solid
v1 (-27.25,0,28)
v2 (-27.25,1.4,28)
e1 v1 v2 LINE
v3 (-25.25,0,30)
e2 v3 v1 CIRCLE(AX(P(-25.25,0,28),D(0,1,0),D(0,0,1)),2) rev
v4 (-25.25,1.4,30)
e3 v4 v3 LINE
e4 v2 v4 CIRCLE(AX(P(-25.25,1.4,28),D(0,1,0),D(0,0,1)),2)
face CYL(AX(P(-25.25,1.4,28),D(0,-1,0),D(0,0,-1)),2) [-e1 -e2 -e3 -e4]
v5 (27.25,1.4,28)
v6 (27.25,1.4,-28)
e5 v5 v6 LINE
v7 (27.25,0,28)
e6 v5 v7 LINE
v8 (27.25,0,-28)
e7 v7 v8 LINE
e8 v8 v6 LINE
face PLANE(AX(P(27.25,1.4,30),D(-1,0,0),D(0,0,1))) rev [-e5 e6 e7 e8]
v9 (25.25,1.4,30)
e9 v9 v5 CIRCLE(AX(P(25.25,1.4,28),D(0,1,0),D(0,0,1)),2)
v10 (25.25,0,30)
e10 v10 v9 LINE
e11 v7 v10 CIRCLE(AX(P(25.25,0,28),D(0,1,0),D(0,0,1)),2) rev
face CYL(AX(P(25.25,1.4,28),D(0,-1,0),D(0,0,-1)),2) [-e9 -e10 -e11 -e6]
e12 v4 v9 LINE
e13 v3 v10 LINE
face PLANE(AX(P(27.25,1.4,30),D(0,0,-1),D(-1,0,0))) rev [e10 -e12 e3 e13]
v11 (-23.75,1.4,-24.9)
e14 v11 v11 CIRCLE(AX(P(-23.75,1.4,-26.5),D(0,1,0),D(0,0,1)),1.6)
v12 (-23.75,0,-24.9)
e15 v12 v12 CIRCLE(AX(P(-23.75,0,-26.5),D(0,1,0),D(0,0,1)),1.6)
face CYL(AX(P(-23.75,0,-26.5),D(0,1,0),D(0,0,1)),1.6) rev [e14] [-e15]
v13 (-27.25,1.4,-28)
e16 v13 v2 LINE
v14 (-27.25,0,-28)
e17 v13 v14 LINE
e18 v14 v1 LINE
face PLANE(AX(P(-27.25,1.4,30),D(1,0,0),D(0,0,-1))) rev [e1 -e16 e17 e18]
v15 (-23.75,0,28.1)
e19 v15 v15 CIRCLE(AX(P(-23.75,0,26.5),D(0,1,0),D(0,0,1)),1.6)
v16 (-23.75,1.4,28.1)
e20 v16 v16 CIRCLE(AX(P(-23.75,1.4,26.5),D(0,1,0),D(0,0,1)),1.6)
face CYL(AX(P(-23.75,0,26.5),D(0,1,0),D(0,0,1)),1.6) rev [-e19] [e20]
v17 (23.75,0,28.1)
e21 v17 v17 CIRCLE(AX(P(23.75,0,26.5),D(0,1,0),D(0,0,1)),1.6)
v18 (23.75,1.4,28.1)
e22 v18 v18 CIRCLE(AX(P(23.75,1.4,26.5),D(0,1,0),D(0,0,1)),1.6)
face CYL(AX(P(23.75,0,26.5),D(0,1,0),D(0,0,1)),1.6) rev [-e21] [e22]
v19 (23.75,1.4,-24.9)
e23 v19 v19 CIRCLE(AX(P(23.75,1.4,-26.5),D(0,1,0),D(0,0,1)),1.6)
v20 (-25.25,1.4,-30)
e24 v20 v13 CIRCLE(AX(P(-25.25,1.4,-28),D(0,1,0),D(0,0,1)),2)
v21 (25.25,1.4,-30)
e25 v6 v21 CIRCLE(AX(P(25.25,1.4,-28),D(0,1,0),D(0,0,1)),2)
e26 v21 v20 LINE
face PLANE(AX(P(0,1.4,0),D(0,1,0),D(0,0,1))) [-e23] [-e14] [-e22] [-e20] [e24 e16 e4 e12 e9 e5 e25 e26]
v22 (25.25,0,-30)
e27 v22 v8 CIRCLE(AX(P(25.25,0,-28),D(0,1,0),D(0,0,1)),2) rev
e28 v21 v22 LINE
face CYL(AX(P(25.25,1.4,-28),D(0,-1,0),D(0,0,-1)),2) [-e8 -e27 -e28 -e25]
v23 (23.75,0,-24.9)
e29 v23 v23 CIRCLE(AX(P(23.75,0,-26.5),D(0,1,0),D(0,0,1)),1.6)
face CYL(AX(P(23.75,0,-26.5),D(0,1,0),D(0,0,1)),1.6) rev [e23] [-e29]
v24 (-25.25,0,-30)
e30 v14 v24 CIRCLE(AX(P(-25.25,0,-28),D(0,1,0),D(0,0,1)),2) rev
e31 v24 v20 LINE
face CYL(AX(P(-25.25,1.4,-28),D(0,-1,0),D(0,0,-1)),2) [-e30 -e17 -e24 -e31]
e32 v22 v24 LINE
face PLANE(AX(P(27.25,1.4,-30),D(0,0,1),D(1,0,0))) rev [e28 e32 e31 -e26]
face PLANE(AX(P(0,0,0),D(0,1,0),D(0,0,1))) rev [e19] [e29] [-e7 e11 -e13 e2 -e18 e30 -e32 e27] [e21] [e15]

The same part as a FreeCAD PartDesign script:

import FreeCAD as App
import Part
import Sketcher
from FreeCAD import Vector


def edges_at(feature, points):
    """Names of the edges that pass closest to the given points."""
    edges = feature.Shape.Edges
    near = lambda p: min(range(len(edges)), key=lambda i: edges[i].distToShape(Part.Vertex(*p))[0])
    return sorted({f"Edge{near(p) + 1}" for p in points})

doc = App.newDocument("Part")
params = doc.addObject("Spreadsheet::Sheet", "Params")
for row, (alias, value) in enumerate([
    ("sketch1_height", "60 mm"),
    ("sketch1_width", "54.5 mm"),
    ("pad1_length", "1.4 mm"),
    ("sketch2_diameter", "3.2 mm"),
    ("fillet_radius", "2 mm"),
], start=1):
    params.set(f"A{row}", alias)
    params.set(f"B{row}", "=" + value)
    params.setAlias(f"B{row}", alias)

body = doc.addObject("PartDesign::Body", "Body")

# Sketch on XZ plane
sketch1 = body.newObject("Sketcher::SketchObject", "Sketch")
sketch1.AttachmentSupport = (doc.getObject("XZ_Plane"), [""])
sketch1.MapMode = "FlatFace"
sketch1.addGeometry(Part.LineSegment(Vector(-27, -30, 0), Vector(-27, 30, 0)), False)
sketch1.addGeometry(Part.LineSegment(Vector(-27, 30, 0), Vector(27, 30, 0)), False)
sketch1.addGeometry(Part.LineSegment(Vector(27, 30, 0), Vector(27, -30, 0)), False)
sketch1.addGeometry(Part.LineSegment(Vector(27, -30, 0), Vector(-27, -30, 0)), False)
sketch1.addConstraint(Sketcher.Constraint("Coincident", 0, 2, 1, 1))
sketch1.addConstraint(Sketcher.Constraint("Coincident", 1, 2, 2, 1))
sketch1.addConstraint(Sketcher.Constraint("Coincident", 2, 2, 3, 1))
sketch1.addConstraint(Sketcher.Constraint("Coincident", 3, 2, 0, 1))
sketch1.addConstraint(Sketcher.Constraint("Vertical", 0))
sketch1.addConstraint(Sketcher.Constraint("Horizontal", 1))
sketch1.addConstraint(Sketcher.Constraint("Vertical", 2))
sketch1.addConstraint(Sketcher.Constraint("Horizontal", 3))
sketch1.addConstraint(Sketcher.Constraint("Symmetric", 0, 2, 2, 2, -1, 1))
sketch1.addConstraint(Sketcher.Constraint("DistanceY", 0, 1, 0, 2, 60.0))
sketch1.addConstraint(Sketcher.Constraint("DistanceX", 1, 1, 1, 2, 54.5))
sketch1.setExpression("Constraints[9]", "Params.sketch1_height")
sketch1.setExpression("Constraints[10]", "Params.sketch1_width")
pad1 = body.newObject("PartDesign::Pad", "Pad")
pad1.Profile = sketch1
pad1.setExpression("Length", "Params.pad1_length")
pad1.Reversed = True

# Sketch on XZ plane
sketch2 = body.newObject("Sketcher::SketchObject", "Sketch001")
sketch2.AttachmentSupport = (doc.getObject("XZ_Plane"), [""])
sketch2.MapMode = "FlatFace"
sketch2.AttachmentOffset = App.Placement(Vector(0, 0, -1.4), App.Rotation())
sketch2.addGeometry(Part.Circle(Vector(-23.8, -26.5, 0), Vector(0, 0, 1), 1.6), False)
sketch2.addGeometry(Part.Circle(Vector(-23.8, 26.5, 0), Vector(0, 0, 1), 1.6), False)
sketch2.addGeometry(Part.Circle(Vector(23.8, 26.5, 0), Vector(0, 0, 1), 1.6), False)
sketch2.addGeometry(Part.Circle(Vector(23.8, -26.5, 0), Vector(0, 0, 1), 1.6), False)
sketch2.addConstraint(Sketcher.Constraint("Equal", 0, 1))
sketch2.addConstraint(Sketcher.Constraint("Equal", 1, 2))
sketch2.addConstraint(Sketcher.Constraint("Equal", 2, 3))
sketch2.addConstraint(Sketcher.Constraint("Symmetric", 0, 3, 2, 3, -1, 1))
sketch2.addConstraint(Sketcher.Constraint("Symmetric", 1, 3, 3, 3, -1, 1))
sketch2.addConstraint(Sketcher.Constraint("Symmetric", 1, 3, 2, 3, -2))
sketch2.addConstraint(Sketcher.Constraint("Diameter", 0, 3.2))
sketch2.addConstraint(Sketcher.Constraint("DistanceY", 0, 3, 1, 3, 53.0))
sketch2.addConstraint(Sketcher.Constraint("DistanceX", 1, 3, 2, 3, 47.5))
sketch2.setExpression("Constraints[6]", "Params.sketch2_diameter")
pocket1 = body.newObject("PartDesign::Pocket", "Pocket")
pocket1.Profile = sketch2
pocket1.Type = "ThroughAll"
pocket1.Reversed = True
doc.recompute()

fillet = body.newObject("PartDesign::Fillet", "Fillet")
fillet.Base = (pocket1, edges_at(pocket1, [
    (-27.25, 0.7, -30),
    (27.25, 0.7, -30),
    (27.25, 0.7, 30),
    (-27.25, 0.7, 30),
]))
fillet.setExpression("Radius", "Params.fillet_radius")

doc.recompute()
